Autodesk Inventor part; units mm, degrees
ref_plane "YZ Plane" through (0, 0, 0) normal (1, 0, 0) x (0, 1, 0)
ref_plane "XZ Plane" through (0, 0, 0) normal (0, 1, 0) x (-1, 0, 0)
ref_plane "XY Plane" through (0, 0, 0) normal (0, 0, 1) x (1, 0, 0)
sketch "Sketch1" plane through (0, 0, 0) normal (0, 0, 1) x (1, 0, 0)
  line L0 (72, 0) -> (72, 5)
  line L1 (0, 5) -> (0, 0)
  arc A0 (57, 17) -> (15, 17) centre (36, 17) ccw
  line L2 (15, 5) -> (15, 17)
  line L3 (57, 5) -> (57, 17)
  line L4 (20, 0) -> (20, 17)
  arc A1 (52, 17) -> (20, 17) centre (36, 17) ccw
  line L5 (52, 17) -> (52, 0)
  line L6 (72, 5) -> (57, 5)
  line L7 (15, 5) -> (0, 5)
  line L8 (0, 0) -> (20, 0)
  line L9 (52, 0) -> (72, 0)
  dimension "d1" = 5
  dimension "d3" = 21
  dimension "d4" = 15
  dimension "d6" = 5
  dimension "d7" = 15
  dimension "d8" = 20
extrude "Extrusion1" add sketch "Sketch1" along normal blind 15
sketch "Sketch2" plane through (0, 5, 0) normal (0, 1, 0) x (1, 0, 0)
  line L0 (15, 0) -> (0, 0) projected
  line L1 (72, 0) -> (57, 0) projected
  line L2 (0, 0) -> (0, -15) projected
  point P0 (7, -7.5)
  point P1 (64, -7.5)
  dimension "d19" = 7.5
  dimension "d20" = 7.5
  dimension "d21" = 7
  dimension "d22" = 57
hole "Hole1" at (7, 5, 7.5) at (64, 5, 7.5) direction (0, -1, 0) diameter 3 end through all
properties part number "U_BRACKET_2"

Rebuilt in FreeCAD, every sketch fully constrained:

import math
import FreeCAD as App
import Part
import Sketcher

doc = App.newDocument("Part")
body = doc.addObject("PartDesign::Body", "Body")

sketch1 = body.newObject("Sketcher::SketchObject", "Sketch")
sketch1.AttachmentSupport = (doc.getObject("XY_Plane"), [""])
sketch1.MapMode = "FlatFace"
sketch1.addGeometry([
    Part.LineSegment(App.Vector(52, 0, 0), App.Vector(72, 0, 0)),
    Part.LineSegment(App.Vector(72, 0, 0), App.Vector(72, 5, 0)),
    Part.LineSegment(App.Vector(72, 5, 0), App.Vector(57, 5, 0)),
    Part.LineSegment(App.Vector(57, 5, 0), App.Vector(57, 17, 0)),
    Part.ArcOfCircle(Part.Circle(App.Vector(36, 17, 0), App.Vector(0, 0, 1), 21), math.radians(0), math.radians(180)),
    Part.LineSegment(App.Vector(15, 17, 0), App.Vector(15, 5, 0)),
    Part.LineSegment(App.Vector(15, 5, 0), App.Vector(0, 5, 0)),
    Part.LineSegment(App.Vector(0, 5, 0), App.Vector(0, 0, 0)),
    Part.LineSegment(App.Vector(0, 0, 0), App.Vector(20, 0, 0)),
    Part.LineSegment(App.Vector(20, 0, 0), App.Vector(20, 17, 0)),
    Part.ArcOfCircle(Part.Circle(App.Vector(36, 17, 0), App.Vector(0, 0, 1), 16), math.radians(0), math.radians(180)),
    Part.LineSegment(App.Vector(52, 17, 0), App.Vector(52, 0, 0)),
], False)
sketch1.addConstraint([
    Sketcher.Constraint("Coincident", 0, 2, 1, 1),
    Sketcher.Constraint("Coincident", 1, 2, 2, 1),
    Sketcher.Constraint("Coincident", 2, 2, 3, 1),
    Sketcher.Constraint("Tangent", 3, 2, 4, 1),
    Sketcher.Constraint("Tangent", 4, 2, 5, 1),
    Sketcher.Constraint("Coincident", 5, 2, 6, 1),
    Sketcher.Constraint("Coincident", 6, 2, 7, 1),
    Sketcher.Constraint("Coincident", 7, 2, 8, 1),
    Sketcher.Constraint("Coincident", 8, 2, 9, 1),
    Sketcher.Constraint("Tangent", 9, 2, 10, 2),
    Sketcher.Constraint("Tangent", 10, 1, 11, 1),
    Sketcher.Constraint("Coincident", 11, 2, 0, 1),
    Sketcher.Constraint("Horizontal", 0),
    Sketcher.Constraint("Vertical", 1),
    Sketcher.Constraint("Horizontal", 2),
    Sketcher.Constraint("Vertical", 3),
    Sketcher.Constraint("Vertical", 5),
    Sketcher.Constraint("Horizontal", 6),
    Sketcher.Constraint("Vertical", 7),
    Sketcher.Constraint("Horizontal", 8),
    Sketcher.Constraint("Vertical", 9),
    Sketcher.Constraint("Vertical", 11),
    Sketcher.Constraint("Coincident", 7, 2, -1, 1),
    Sketcher.Constraint("Coincident", 10, 3, 4, 3),
    Sketcher.Constraint("PointOnObject", 0, 2, -1),
    Sketcher.Constraint("Horizontal", 2, 2, 5, 2),
    Sketcher.Constraint("Equal", 2, 6),
    Sketcher.Constraint("Radius", 4, 21.0),
    Sketcher.Constraint("DistanceX", 0, 1, 0, 2, 20.0),
    Sketcher.Constraint("DistanceX", 2, 2, 2, 1, 15.0),
    Sketcher.Constraint("DistanceY", 1, 1, 1, 2, 5.0),
    Sketcher.Constraint("DistanceY", 3, 1, 3, 2, 12.0),
])
pad1 = body.newObject("PartDesign::Pad", "Pad")
pad1.Profile = sketch1
pad1.Length = 15

sketch2 = body.newObject("Sketcher::SketchObject", "Sketch001")
sketch2.AttachmentSupport = (doc.getObject("XZ_Plane"), [""])
sketch2.MapMode = "FlatFace"
sketch2.AttachmentOffset = App.Placement(App.Vector(0, 0, -5), App.Rotation())
sketch2.addGeometry([
    Part.Circle(App.Vector(7, 7.5, 0), App.Vector(0, 0, 1), 1.5),
    Part.Circle(App.Vector(64, 7.5, 0), App.Vector(0, 0, 1), 1.5),
], False)
sketch2.addConstraint([
    Sketcher.Constraint("Equal", 0, 1),
    Sketcher.Constraint("Horizontal", 0, 3, 1, 3),
    Sketcher.Constraint("Diameter", 0, 3.0),
    Sketcher.Constraint("DistanceX", -1, 1, 0, 3, 7.0),
    Sketcher.Constraint("DistanceX", -1, 1, 1, 3, 64.0),
    Sketcher.Constraint("DistanceY", -1, 1, 0, 3, 7.5),
])
doc.recompute()
hole = body.newObject("PartDesign::Hole", "Hole")
hole.Profile = sketch2
hole.ThreadType = "None"
hole.Diameter = 3
hole.DepthType = "ThroughAll"
hole.Reversed = True

doc.recompute()
